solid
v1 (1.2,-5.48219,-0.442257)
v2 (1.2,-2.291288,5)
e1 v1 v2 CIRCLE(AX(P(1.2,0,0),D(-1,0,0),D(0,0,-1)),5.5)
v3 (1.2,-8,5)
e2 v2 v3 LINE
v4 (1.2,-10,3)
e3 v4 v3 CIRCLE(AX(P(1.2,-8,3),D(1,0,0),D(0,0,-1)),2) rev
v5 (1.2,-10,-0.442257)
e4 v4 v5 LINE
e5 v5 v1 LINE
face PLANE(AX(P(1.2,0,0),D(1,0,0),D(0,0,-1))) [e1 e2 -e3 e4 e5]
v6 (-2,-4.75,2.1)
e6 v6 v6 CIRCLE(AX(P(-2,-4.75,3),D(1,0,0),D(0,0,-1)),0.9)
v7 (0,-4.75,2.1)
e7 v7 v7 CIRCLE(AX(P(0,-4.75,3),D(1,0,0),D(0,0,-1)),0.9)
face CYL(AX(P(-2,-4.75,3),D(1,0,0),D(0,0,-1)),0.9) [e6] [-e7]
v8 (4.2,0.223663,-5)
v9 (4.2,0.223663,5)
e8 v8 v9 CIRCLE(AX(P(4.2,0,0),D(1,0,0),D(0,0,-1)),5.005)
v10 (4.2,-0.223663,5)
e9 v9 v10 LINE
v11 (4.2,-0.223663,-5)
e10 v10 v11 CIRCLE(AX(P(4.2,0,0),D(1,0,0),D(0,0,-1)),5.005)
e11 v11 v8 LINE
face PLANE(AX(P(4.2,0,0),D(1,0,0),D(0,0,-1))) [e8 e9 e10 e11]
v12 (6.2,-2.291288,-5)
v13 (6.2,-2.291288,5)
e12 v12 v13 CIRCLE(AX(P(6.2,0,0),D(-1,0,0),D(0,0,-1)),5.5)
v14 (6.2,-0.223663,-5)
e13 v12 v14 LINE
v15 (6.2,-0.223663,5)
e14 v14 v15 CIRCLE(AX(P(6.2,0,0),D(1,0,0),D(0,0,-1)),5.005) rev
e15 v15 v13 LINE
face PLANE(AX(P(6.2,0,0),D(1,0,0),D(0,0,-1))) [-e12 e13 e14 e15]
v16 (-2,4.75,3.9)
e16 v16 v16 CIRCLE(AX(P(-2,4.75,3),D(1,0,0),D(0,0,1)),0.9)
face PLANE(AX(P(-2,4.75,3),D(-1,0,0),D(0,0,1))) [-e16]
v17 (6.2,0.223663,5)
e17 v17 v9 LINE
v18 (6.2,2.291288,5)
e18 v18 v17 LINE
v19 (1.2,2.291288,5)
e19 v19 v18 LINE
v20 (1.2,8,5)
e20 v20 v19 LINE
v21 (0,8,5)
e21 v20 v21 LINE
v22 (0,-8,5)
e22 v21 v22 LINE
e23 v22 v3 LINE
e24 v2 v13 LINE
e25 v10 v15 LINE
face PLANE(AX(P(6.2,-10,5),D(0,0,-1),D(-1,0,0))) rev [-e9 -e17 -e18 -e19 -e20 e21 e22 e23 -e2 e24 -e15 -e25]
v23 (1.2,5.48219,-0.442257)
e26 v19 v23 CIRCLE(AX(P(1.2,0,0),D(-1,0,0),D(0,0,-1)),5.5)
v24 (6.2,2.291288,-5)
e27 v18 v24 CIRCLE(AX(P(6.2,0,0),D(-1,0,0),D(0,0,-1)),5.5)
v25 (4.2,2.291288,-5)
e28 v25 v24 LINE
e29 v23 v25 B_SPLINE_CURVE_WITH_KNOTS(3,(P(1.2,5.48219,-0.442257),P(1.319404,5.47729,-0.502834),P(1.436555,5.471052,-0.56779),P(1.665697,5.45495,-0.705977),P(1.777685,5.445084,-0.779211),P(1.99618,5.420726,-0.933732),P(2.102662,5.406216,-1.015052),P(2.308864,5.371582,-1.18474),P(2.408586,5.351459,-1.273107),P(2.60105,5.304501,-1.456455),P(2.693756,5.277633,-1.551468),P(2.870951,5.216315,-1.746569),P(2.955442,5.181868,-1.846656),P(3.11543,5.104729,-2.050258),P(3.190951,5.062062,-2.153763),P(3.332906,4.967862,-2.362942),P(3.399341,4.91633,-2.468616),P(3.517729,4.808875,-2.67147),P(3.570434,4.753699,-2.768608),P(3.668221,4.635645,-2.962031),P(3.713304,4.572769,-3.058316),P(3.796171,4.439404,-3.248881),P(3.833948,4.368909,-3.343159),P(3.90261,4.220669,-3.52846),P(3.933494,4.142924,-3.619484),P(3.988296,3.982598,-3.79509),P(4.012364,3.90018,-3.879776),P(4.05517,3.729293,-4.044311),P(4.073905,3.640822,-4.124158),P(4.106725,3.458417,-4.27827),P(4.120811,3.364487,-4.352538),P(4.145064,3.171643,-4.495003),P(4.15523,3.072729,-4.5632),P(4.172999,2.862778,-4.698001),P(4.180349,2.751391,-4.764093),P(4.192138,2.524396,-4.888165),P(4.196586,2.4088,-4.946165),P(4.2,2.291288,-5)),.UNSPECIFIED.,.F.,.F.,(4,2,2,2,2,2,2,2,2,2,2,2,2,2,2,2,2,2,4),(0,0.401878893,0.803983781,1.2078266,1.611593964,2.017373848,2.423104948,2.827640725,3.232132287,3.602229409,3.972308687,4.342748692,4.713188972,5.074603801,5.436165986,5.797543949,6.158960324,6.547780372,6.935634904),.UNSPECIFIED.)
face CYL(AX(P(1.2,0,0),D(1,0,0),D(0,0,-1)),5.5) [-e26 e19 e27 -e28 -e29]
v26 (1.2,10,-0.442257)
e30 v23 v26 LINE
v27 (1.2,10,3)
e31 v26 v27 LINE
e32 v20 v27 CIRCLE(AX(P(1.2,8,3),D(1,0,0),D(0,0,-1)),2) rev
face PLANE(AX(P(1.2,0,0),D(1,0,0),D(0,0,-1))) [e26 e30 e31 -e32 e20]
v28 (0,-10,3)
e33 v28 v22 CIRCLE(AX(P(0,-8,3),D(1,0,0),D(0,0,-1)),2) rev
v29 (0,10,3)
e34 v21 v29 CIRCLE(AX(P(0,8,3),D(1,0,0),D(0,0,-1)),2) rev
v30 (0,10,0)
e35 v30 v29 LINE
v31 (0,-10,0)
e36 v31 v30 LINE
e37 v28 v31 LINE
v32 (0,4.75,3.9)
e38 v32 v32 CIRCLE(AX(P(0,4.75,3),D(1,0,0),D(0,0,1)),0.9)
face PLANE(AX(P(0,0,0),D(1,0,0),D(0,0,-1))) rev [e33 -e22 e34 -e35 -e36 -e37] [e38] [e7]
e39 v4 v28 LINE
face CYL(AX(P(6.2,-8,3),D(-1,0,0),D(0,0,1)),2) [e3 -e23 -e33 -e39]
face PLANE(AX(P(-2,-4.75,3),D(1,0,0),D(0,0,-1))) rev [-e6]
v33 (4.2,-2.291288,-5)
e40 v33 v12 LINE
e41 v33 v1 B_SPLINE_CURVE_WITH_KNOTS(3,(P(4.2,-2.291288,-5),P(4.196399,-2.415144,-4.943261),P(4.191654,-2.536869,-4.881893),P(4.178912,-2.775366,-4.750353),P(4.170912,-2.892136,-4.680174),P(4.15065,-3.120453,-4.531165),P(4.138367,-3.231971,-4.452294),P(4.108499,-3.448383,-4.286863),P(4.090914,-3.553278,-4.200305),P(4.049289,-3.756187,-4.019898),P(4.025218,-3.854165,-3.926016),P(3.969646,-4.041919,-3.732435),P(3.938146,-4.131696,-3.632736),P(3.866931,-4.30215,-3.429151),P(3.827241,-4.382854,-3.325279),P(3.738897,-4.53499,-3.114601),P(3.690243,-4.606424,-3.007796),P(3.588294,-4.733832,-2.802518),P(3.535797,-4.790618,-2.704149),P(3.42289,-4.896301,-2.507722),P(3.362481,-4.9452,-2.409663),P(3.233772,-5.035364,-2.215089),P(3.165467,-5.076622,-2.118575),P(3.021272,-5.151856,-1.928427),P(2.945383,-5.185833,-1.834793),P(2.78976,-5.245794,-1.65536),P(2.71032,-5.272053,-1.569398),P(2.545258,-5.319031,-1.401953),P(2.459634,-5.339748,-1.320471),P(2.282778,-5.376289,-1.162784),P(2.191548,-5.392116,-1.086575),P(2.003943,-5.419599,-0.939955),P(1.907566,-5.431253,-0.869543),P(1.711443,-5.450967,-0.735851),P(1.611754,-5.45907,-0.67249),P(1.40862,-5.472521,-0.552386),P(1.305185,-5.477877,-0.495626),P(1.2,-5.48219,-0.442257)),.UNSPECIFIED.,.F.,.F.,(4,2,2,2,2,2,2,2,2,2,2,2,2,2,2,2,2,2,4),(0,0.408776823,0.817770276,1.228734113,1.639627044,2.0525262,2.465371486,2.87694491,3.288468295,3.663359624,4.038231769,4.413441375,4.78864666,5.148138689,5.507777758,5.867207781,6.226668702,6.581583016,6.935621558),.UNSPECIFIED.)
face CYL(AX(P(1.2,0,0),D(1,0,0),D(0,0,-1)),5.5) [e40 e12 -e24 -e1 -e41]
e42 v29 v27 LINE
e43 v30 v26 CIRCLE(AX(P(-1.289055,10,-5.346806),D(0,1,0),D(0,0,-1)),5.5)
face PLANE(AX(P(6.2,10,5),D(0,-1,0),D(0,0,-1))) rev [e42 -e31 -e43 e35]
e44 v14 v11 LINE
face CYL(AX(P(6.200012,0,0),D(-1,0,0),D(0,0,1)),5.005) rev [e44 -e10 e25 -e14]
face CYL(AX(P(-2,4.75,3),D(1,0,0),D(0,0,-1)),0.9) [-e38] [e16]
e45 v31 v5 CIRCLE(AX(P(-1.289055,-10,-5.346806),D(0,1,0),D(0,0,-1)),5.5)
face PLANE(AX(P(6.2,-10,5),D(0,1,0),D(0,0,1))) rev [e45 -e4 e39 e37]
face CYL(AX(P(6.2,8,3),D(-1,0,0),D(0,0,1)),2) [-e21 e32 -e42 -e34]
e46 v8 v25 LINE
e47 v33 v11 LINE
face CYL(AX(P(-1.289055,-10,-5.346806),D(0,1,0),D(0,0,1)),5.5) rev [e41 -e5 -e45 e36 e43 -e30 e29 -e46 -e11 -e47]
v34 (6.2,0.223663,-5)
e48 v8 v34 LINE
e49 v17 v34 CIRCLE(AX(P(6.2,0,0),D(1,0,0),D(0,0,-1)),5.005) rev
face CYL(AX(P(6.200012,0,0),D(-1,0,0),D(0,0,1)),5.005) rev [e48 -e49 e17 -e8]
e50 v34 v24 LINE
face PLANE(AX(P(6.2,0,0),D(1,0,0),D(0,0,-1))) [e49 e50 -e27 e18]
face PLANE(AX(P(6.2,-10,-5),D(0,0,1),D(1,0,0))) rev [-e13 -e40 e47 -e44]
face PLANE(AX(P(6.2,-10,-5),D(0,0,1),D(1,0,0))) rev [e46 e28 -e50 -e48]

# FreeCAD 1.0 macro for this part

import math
import FreeCAD as App
import Part
import Sketcher

V = App.Vector
Q = App.Units.Quantity


def edges_at(feature, points):
    """Names of the edges that pass closest to the given points."""
    edges = feature.Shape.Edges
    near = lambda p: min(range(len(edges)), key=lambda i: edges[i].distToShape(Part.Vertex(*p))[0])
    return sorted({f"Edge{near(p) + 1}" for p in points})


def add_polygon(sketch, points):
    """Adds a closed chain of lines whose ends are joined by coincident constraints."""
    first, n = sketch.GeometryCount, len(points)
    for a, b in zip(points, points[1:] + points[:1]):
        sketch.addGeometry(Part.LineSegment(App.Vector(*a, 0), App.Vector(*b, 0)), False)
    for i in range(n):
        sketch.addConstraint(Sketcher.Constraint("Coincident", first + i, 2, first + (i + 1) % n, 1))

doc = App.newDocument("Part")
body = doc.addObject("PartDesign::Body", "Body")

# Sketch on YZ plane
sketch1 = body.newObject("Sketcher::SketchObject", "Sketch")
sketch1.AttachmentSupport = (doc.getObject("YZ_Plane"), [""])
sketch1.MapMode = "FlatFace"
add_polygon(sketch1, [(-10, 5), (-10, -5), (10, -5), (10, 5)])  # lines 0-3
sketch1.addConstraint(Sketcher.Constraint("Vertical", 0))
sketch1.addConstraint(Sketcher.Constraint("Horizontal", 1))
sketch1.addConstraint(Sketcher.Constraint("Vertical", 2))
sketch1.addConstraint(Sketcher.Constraint("Horizontal", 3))
sketch1.addConstraint(Sketcher.Constraint("Symmetric", 0, 2, 2, 2, -1, 1))
sketch1.addConstraint(Sketcher.Constraint("DistanceX", 1, 1, 1, 2, Q("20 mm")))
sketch1.addConstraint(Sketcher.Constraint("DistanceY", 0, 2, 0, 1, Q("10 mm")))
pad1 = body.newObject("PartDesign::Pad", "Pad")
pad1.Profile = sketch1
pad1.Length = 6.2

# Sketch on YZ plane
sketch2 = body.newObject("Sketcher::SketchObject", "Sketch001")
sketch2.AttachmentSupport = (doc.getObject("YZ_Plane"), [""])
sketch2.MapMode = "FlatFace"
sketch2.addGeometry(Part.Circle(V(-4.8, 3, 0), V(0, 0, 1), 0.9), False)
sketch2.addGeometry(Part.Circle(V(4.8, 3, 0), V(0, 0, 1), 0.9), False)
sketch2.addConstraint(Sketcher.Constraint("Equal", 0, 1))
sketch2.addConstraint(Sketcher.Constraint("Symmetric", 0, 3, 1, 3, -2))
sketch2.addConstraint(Sketcher.Constraint("Diameter", 0, Q("1.8 mm")))
sketch2.addConstraint(Sketcher.Constraint("DistanceY", -1, 1, 0, 3, Q("3 mm")))
sketch2.addConstraint(Sketcher.Constraint("DistanceX", 0, 3, 1, 3, Q("9.5 mm")))
pad2 = body.newObject("PartDesign::Pad", "Pad001")
pad2.Profile = sketch2
pad2.Length = 2
pad2.Reversed = True
doc.recompute()

fillet = body.newObject("PartDesign::Fillet", "Fillet")
fillet.Base = (pad2, edges_at(pad2, [(3.1, -10, 5), (3.1, 10, 5)]))
fillet.Radius = 2

# Sketch on YZ plane
sketch3 = body.newObject("Sketcher::SketchObject", "Sketch002")
sketch3.AttachmentSupport = (doc.getObject("YZ_Plane"), [""])
sketch3.MapMode = "FlatFace"
sketch3.AttachmentOffset = App.Placement(V(0, 0, 6.2), App.Rotation())
sketch3.addGeometry(Part.Circle(V(0, 0, 0), V(0, 0, 1), 5), False)
sketch3.addConstraint(Sketcher.Constraint("Coincident", 0, 3, -1, 1))
sketch3.addConstraint(Sketcher.Constraint("Diameter", 0, Q("10.01 mm")))
pocket1 = body.newObject("PartDesign::Pocket", "Pocket")
pocket1.Profile = sketch3
pocket1.Type = "TwoLengths"
pocket1.Length = 14.865064
pocket1.Length2 = 2
pocket1.Reversed = True

# Sketch on XZ plane
sketch4 = body.newObject("Sketcher::SketchObject", "Sketch003")
sketch4.AttachmentSupport = (doc.getObject("XZ_Plane"), [""])
sketch4.MapMode = "FlatFace"
sketch4.addGeometry(Part.LineSegment(V(4.2, -5, 0), V(0, -5, 0)), False)
sketch4.addGeometry(Part.LineSegment(V(0, -5, 0), V(0, 0, 0)), False)
sketch4.addGeometry(Part.ArcOfCircle(Part.Circle(V(-1.3, -5.3, 0), V(0, 0, 1), 5.5), math.radians(4), math.radians(76)), False)
sketch4.addConstraint(Sketcher.Constraint("Coincident", 0, 2, 1, 1))
sketch4.addConstraint(Sketcher.Constraint("Coincident", 1, 2, 2, 2))
sketch4.addConstraint(Sketcher.Constraint("Coincident", 2, 1, 0, 1))
sketch4.addConstraint(Sketcher.Constraint("Horizontal", 0))
sketch4.addConstraint(Sketcher.Constraint("Vertical", 1))
sketch4.addConstraint(Sketcher.Constraint("Coincident", 1, 2, -1, 1))
sketch4.addConstraint(Sketcher.Constraint("Radius", 2, Q("5.5 mm")))
sketch4.addConstraint(Sketcher.Constraint("DistanceY", 1, 1, 1, 2, Q("5 mm")))
sketch4.addConstraint(Sketcher.Constraint("DistanceX", 0, 2, 0, 1, Q("4.2 mm")))
pocket2 = body.newObject("PartDesign::Pocket", "Pocket001")
pocket2.Profile = sketch4
pocket2.Type = "ThroughAll"
pocket2.Midplane = True

# Sketch on YZ plane
sketch5 = body.newObject("Sketcher::SketchObject", "Sketch004")
sketch5.AttachmentSupport = (doc.getObject("YZ_Plane"), [""])
sketch5.MapMode = "FlatFace"
sketch5.AttachmentOffset = App.Placement(V(0, 0, 6.2), App.Rotation())
sketch5.addGeometry(Part.LineSegment(V(-2, 5, 0), V(-10, 5, 0)), False)
sketch5.addGeometry(Part.LineSegment(V(-10, 5, 0), V(-10, -5, 0)), False)
sketch5.addGeometry(Part.LineSegment(V(-10, -5, 0), V(-2, -5, 0)), False)
sketch5.addGeometry(Part.ArcOfCircle(Part.Circle(V(0, 0, 0), V(0, 0, 1), 6), math.radians(115), math.radians(245)), False)
sketch5.addGeometry(Part.LineSegment(V(10, -5, 0), V(10, 5, 0)), False)
sketch5.addGeometry(Part.LineSegment(V(10, 5, 0), V(2, 5, 0)), False)
sketch5.addGeometry(Part.ArcOfCircle(Part.Circle(V(0, 0, 0), V(0, 0, 1), 6), math.radians(-65), math.radians(65)), False)
sketch5.addGeometry(Part.LineSegment(V(2, -5, 0), V(10, -5, 0)), False)
sketch5.addConstraint(Sketcher.Constraint("Coincident", 0, 2, 1, 1))
sketch5.addConstraint(Sketcher.Constraint("Coincident", 1, 2, 2, 1))
sketch5.addConstraint(Sketcher.Constraint("Coincident", 2, 2, 3, 2))
sketch5.addConstraint(Sketcher.Constraint("Coincident", 3, 1, 0, 1))
sketch5.addConstraint(Sketcher.Constraint("Coincident", 4, 2, 5, 1))
sketch5.addConstraint(Sketcher.Constraint("Coincident", 5, 2, 6, 2))
sketch5.addConstraint(Sketcher.Constraint("Coincident", 6, 1, 7, 1))
sketch5.addConstraint(Sketcher.Constraint("Coincident", 7, 2, 4, 1))
sketch5.addConstraint(Sketcher.Constraint("Horizontal", 0))
sketch5.addConstraint(Sketcher.Constraint("Vertical", 1))
sketch5.addConstraint(Sketcher.Constraint("Horizontal", 2))
sketch5.addConstraint(Sketcher.Constraint("Vertical", 4))
sketch5.addConstraint(Sketcher.Constraint("Horizontal", 5))
sketch5.addConstraint(Sketcher.Constraint("Horizontal", 7))
sketch5.addConstraint(Sketcher.Constraint("Coincident", 3, 3, -1, 1))
sketch5.addConstraint(Sketcher.Constraint("Coincident", 6, 3, -1, 1))
sketch5.addConstraint(Sketcher.Constraint("Equal", 3, 6))
sketch5.addConstraint(Sketcher.Constraint("Symmetric", 1, 2, 4, 2, -1, 1))
sketch5.addConstraint(Sketcher.Constraint("Horizontal", 3, 1, 4, 2))
sketch5.addConstraint(Sketcher.Constraint("Horizontal", 2, 2, 6, 1))
sketch5.addConstraint(Sketcher.Constraint("Radius", 3, Q("5.5 mm")))
sketch5.addConstraint(Sketcher.Constraint("DistanceY", 1, 2, 1, 1, Q("10 mm")))
sketch5.addConstraint(Sketcher.Constraint("DistanceX", 0, 2, -1, 1, Q("10 mm")))
pocket3 = body.newObject("PartDesign::Pocket", "Pocket002")
pocket3.Profile = sketch5
pocket3.Length = 5

doc.recompute()
